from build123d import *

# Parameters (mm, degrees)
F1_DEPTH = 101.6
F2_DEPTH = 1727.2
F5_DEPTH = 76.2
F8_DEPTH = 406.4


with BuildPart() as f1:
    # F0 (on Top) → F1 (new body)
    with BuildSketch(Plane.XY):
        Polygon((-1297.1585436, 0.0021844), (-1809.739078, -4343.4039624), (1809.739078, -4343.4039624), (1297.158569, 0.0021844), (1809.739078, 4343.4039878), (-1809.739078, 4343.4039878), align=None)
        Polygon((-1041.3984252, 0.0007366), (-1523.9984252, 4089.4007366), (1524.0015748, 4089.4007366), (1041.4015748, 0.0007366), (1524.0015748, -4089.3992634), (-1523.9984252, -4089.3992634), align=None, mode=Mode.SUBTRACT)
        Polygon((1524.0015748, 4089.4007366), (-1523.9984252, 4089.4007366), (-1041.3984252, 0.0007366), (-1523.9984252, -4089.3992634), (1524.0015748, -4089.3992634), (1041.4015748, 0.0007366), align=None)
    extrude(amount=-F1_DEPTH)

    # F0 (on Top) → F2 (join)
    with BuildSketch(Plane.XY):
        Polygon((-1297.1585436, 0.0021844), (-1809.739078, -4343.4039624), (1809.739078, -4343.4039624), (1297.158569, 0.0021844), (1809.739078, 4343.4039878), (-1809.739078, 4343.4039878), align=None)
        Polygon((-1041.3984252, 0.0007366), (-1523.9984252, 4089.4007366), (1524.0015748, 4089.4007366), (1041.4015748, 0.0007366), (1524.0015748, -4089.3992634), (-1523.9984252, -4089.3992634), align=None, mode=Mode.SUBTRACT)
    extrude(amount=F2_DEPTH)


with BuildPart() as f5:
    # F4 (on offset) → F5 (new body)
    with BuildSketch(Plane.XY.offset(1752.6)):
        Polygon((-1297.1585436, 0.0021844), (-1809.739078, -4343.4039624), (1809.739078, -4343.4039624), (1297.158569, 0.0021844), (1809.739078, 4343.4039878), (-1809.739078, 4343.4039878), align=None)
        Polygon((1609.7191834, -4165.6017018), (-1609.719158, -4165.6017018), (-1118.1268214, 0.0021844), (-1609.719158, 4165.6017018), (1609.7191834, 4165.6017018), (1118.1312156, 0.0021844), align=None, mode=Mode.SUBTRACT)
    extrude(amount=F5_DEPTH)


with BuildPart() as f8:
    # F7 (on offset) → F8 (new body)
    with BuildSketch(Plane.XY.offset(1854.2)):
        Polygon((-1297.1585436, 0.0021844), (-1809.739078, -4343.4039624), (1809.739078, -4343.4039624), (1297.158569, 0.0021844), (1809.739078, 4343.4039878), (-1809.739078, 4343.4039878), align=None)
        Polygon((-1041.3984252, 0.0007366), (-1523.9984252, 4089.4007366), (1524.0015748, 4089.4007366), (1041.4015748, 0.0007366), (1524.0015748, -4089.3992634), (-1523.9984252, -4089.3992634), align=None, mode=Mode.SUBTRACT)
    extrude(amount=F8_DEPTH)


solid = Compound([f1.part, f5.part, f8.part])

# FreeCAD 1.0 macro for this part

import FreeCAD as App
import Part
import Sketcher
from FreeCAD import Vector
Q = App.Units.Quantity


def add_polygon(sketch, points):
    """Adds a closed chain of lines whose ends are joined by coincident constraints."""
    first, n = sketch.GeometryCount, len(points)
    for a, b in zip(points, points[1:] + points[:1]):
        sketch.addGeometry(Part.LineSegment(App.Vector(*a, 0), App.Vector(*b, 0)), False)
    for i in range(n):
        sketch.addConstraint(Sketcher.Constraint("Coincident", first + i, 2, first + (i + 1) % n, 1))

doc = App.newDocument("Part")
body = doc.addObject("PartDesign::Body", "Body")

sketch1 = body.newObject("Sketcher::SketchObject", "Sketch")
sketch1.AttachmentSupport = (doc.getObject("XY_Plane"), [""])
sketch1.MapMode = "FlatFace"
add_polygon(sketch1, [(-1297.158544, 0.002184), (-1809.739078, -4343.403962), (1809.739078, -4343.403962), (1297.158569, 0.002184), (1809.739078, 4343.403988), (-1809.739078, 4343.403988)])
sketch1.addConstraint([
    Sketcher.Constraint("Horizontal", 1),
    Sketcher.Constraint("Horizontal", 4),
    Sketcher.Constraint("Distance", 2, Q("4373.547271 mm")),
    Sketcher.Constraint("Distance", 5, Q("4373.542961 mm")),
    Sketcher.Constraint("DistanceX", 1, 1, 1, 2, Q("3619.478156 mm")),
    Sketcher.Constraint("DistanceX", 4, 2, 4, 1, Q("3619.478156 mm")),
    Sketcher.Constraint("DistanceX", 0, 2, -1, 1, Q("1809.739078 mm")),
    Sketcher.Constraint("DistanceX", -1, 1, 2, 2, Q("1297.158569 mm")),
    Sketcher.Constraint("DistanceX", -1, 1, 3, 2, Q("1809.739078 mm")),
    Sketcher.Constraint("DistanceY", 1, 2, 3, 2, Q("8686.80795 mm")),
    Sketcher.Constraint("DistanceX", 5, 2, 3, 2, Q("3106.897622 mm")),
    Sketcher.Constraint("DistanceY", 0, 2, -1, 1, Q("4343.403962 mm")),
])
pad1 = body.newObject("PartDesign::Pad", "Pad")
pad1.Profile = sketch1
pad1.Length = Q("4 in")
pad1.Reversed = True

sketch2 = body.newObject("Sketcher::SketchObject", "Sketch001")
sketch2.AttachmentSupport = (doc.getObject("XY_Plane"), [""])
sketch2.MapMode = "FlatFace"
add_polygon(sketch2, [(-1297.158544, 0.002184), (-1809.739078, -4343.403962), (1809.739078, -4343.403962), (1297.158569, 0.002184), (1809.739078, 4343.403988), (-1809.739078, 4343.403988)])
add_polygon(sketch2, [(-1523.998425, -4089.399263), (-1041.398425, 0.000737), (-1523.998425, 4089.400737), (1524.001575, 4089.400737), (1041.401575, 0.000737), (1524.001575, -4089.399263)])
sketch2.addConstraint([
    Sketcher.Constraint("Horizontal", 1),
    Sketcher.Constraint("Horizontal", 4),
    Sketcher.Constraint("Horizontal", 8),
    Sketcher.Constraint("Horizontal", 11),
    Sketcher.Constraint("DistanceX", 8, 1, 8, 2, Q("120 in")),
    Sketcher.Constraint("DistanceX", 11, 2, 11, 1, Q("120 in")),
    Sketcher.Constraint("DistanceX", 7, 2, 6, 2, Q("19 in")),
    Sketcher.Constraint("DistanceY", 6, 2, 7, 2, Q("161 in")),
    Sketcher.Constraint("DistanceX", 6, 2, 9, 2, Q("82 in")),
    Sketcher.Constraint("DistanceY", 9, 2, 8, 2, Q("161 in")),
    Sketcher.Constraint("DistanceX", 9, 2, 10, 2, Q("19 in")),
    Sketcher.Constraint("DistanceY", 10, 2, 9, 2, Q("161 in")),
    Sketcher.Constraint("DistanceY", 0, 2, 6, 2, Q("4343.404699 mm")),
    Sketcher.Constraint("Distance", 2, Q("4373.547271 mm")),
    Sketcher.Constraint("Distance", 5, Q("4373.542961 mm")),
    Sketcher.Constraint("DistanceX", 1, 1, 1, 2, Q("3619.478156 mm")),
    Sketcher.Constraint("DistanceX", 4, 2, 4, 1, Q("3619.478156 mm")),
    Sketcher.Constraint("DistanceX", 0, 2, -1, 1, Q("1809.739078 mm")),
    Sketcher.Constraint("DistanceX", -1, 1, 2, 2, Q("1297.158569 mm")),
    Sketcher.Constraint("DistanceX", -1, 1, 3, 2, Q("1809.739078 mm")),
    Sketcher.Constraint("DistanceY", 1, 2, 3, 2, Q("8686.80795 mm")),
    Sketcher.Constraint("DistanceX", 5, 2, 3, 2, Q("3106.897622 mm")),
    Sketcher.Constraint("DistanceX", 5, 2, 6, 2, Q("255.760118 mm")),
    Sketcher.Constraint("DistanceY", 0, 2, -1, 1, Q("4343.403962 mm")),
])
pad2 = body.newObject("PartDesign::Pad", "Pad001")
pad2.Profile = sketch2
pad2.Length = Q("68 in")
body2 = doc.addObject("PartDesign::Body", "Body001")

sketch3 = body2.newObject("Sketcher::SketchObject", "Sketch002")
sketch3.AttachmentSupport = (doc.getObject("XY_Plane001"), [""])
sketch3.MapMode = "FlatFace"
sketch3.AttachmentOffset = App.Placement(Vector(0, 0, 69 * 25.4), App.Rotation())
add_polygon(sketch3, [(-1297.158544, 0.002184), (-1809.739078, -4343.403962), (1809.739078, -4343.403962), (1297.158569, 0.002184), (1809.739078, 4343.403988), (-1809.739078, 4343.403988)])
add_polygon(sketch3, [(1118.131216, 0.002184), (1609.719183, -4165.601702), (-1609.719158, -4165.601702), (-1118.126821, 0.002184), (-1609.719158, 4165.601702), (1609.719183, 4165.601702)])
sketch3.addConstraint([
    Sketcher.Constraint("Horizontal", 1),
    Sketcher.Constraint("Horizontal", 4),
    Sketcher.Constraint("Horizontal", 7),
    Sketcher.Constraint("Horizontal", 10),
    Sketcher.Constraint("DistanceX", 0, 2, 7, 2, Q("7.8748 in")),
    Sketcher.Constraint("DistanceX", 4, 2, 9, 2, Q("7.8748 in")),
    Sketcher.Constraint("Distance", 11, Q("4194.5057 mm")),
    Sketcher.Constraint("DistanceX", 7, 2, 7, 1, Q("3219.438341 mm")),
    Sketcher.Constraint("DistanceX", 10, 1, 10, 2, Q("3219.438341 mm")),
    Sketcher.Constraint("DistanceY", 6, 2, -1, 1, Q("4165.601702 mm")),
    Sketcher.Constraint("DistanceY", -1, 1, 9, 2, Q("4165.601702 mm")),
    Sketcher.Constraint("Distance", 2, Q("4373.547271 mm")),
    Sketcher.Constraint("Distance", 5, Q("4373.542961 mm")),
    Sketcher.Constraint("Distance", 6, Q("4194.510039 mm")),
    Sketcher.Constraint("Distance", 8, Q("4194.510551 mm")),
    Sketcher.Constraint("DistanceX", 1, 1, 1, 2, Q("3619.478156 mm")),
    Sketcher.Constraint("DistanceX", 4, 2, 4, 1, Q("3619.478156 mm")),
    Sketcher.Constraint("DistanceX", 0, 2, -1, 1, Q("1809.739078 mm")),
    Sketcher.Constraint("DistanceX", -1, 1, 2, 2, Q("1297.158569 mm")),
    Sketcher.Constraint("DistanceX", -1, 1, 3, 2, Q("1809.739078 mm")),
    Sketcher.Constraint("DistanceX", 8, 2, -1, 1, Q("1118.126821 mm")),
    Sketcher.Constraint("DistanceY", 1, 2, 3, 2, Q("8686.80795 mm")),
    Sketcher.Constraint("DistanceX", 5, 2, 3, 2, Q("3106.897622 mm")),
    Sketcher.Constraint("DistanceY", 1, 2, 6, 2, Q("177.802261 mm")),
])
pad3 = body2.newObject("PartDesign::Pad", "Pad002")
pad3.Profile = sketch3
pad3.Length = Q("3 in")
body3 = doc.addObject("PartDesign::Body", "Body002")

sketch4 = body3.newObject("Sketcher::SketchObject", "Sketch003")
sketch4.AttachmentSupport = (doc.getObject("XY_Plane002"), [""])
sketch4.MapMode = "FlatFace"
sketch4.AttachmentOffset = App.Placement(Vector(0, 0, 73 * 25.4), App.Rotation())
add_polygon(sketch4, [(-1297.158544, 0.002184), (-1809.739078, -4343.403962), (1809.739078, -4343.403962), (1297.158569, 0.002184), (1809.739078, 4343.403988), (-1809.739078, 4343.403988)])
add_polygon(sketch4, [(-1523.998425, -4089.399263), (-1041.398425, 0.000737), (-1523.998425, 4089.400737), (1524.001575, 4089.400737), (1041.401575, 0.000737), (1524.001575, -4089.399263)])
sketch4.addConstraint([
    Sketcher.Constraint("Horizontal", 1),
    Sketcher.Constraint("Horizontal", 4),
    Sketcher.Constraint("Horizontal", 8),
    Sketcher.Constraint("Horizontal", 11),
    Sketcher.Constraint("DistanceX", 8, 1, 8, 2, Q("120 in")),
    Sketcher.Constraint("DistanceX", 11, 2, 11, 1, Q("120 in")),
    Sketcher.Constraint("DistanceX", 7, 2, 6, 2, Q("19 in")),
    Sketcher.Constraint("DistanceY", 6, 2, 7, 2, Q("161 in")),
    Sketcher.Constraint("DistanceX", 6, 2, 9, 2, Q("82 in")),
    Sketcher.Constraint("DistanceY", 9, 2, 8, 2, Q("161 in")),
    Sketcher.Constraint("DistanceX", 9, 2, 10, 2, Q("19 in")),
    Sketcher.Constraint("DistanceY", 10, 2, 9, 2, Q("161 in")),
    Sketcher.Constraint("DistanceY", 0, 2, 6, 2, Q("4343.404699 mm")),
    Sketcher.Constraint("Distance", 2, Q("4373.547271 mm")),
    Sketcher.Constraint("Distance", 5, Q("4373.542961 mm")),
    Sketcher.Constraint("DistanceX", 1, 1, 1, 2, Q("3619.478156 mm")),
    Sketcher.Constraint("DistanceX", 4, 2, 4, 1, Q("3619.478156 mm")),
    Sketcher.Constraint("DistanceX", 0, 2, -1, 1, Q("1809.739078 mm")),
    Sketcher.Constraint("DistanceX", -1, 1, 2, 2, Q("1297.158569 mm")),
    Sketcher.Constraint("DistanceX", -1, 1, 3, 2, Q("1809.739078 mm")),
    Sketcher.Constraint("DistanceY", 1, 2, 3, 2, Q("8686.80795 mm")),
    Sketcher.Constraint("DistanceX", 5, 2, 3, 2, Q("3106.897622 mm")),
    Sketcher.Constraint("DistanceX", 5, 2, 6, 2, Q("255.760118 mm")),
    Sketcher.Constraint("DistanceY", 0, 2, -1, 1, Q("4343.403962 mm")),
])
pad4 = body3.newObject("PartDesign::Pad", "Pad003")
pad4.Profile = sketch4
pad4.Length = Q("16 in")

doc.recompute()
